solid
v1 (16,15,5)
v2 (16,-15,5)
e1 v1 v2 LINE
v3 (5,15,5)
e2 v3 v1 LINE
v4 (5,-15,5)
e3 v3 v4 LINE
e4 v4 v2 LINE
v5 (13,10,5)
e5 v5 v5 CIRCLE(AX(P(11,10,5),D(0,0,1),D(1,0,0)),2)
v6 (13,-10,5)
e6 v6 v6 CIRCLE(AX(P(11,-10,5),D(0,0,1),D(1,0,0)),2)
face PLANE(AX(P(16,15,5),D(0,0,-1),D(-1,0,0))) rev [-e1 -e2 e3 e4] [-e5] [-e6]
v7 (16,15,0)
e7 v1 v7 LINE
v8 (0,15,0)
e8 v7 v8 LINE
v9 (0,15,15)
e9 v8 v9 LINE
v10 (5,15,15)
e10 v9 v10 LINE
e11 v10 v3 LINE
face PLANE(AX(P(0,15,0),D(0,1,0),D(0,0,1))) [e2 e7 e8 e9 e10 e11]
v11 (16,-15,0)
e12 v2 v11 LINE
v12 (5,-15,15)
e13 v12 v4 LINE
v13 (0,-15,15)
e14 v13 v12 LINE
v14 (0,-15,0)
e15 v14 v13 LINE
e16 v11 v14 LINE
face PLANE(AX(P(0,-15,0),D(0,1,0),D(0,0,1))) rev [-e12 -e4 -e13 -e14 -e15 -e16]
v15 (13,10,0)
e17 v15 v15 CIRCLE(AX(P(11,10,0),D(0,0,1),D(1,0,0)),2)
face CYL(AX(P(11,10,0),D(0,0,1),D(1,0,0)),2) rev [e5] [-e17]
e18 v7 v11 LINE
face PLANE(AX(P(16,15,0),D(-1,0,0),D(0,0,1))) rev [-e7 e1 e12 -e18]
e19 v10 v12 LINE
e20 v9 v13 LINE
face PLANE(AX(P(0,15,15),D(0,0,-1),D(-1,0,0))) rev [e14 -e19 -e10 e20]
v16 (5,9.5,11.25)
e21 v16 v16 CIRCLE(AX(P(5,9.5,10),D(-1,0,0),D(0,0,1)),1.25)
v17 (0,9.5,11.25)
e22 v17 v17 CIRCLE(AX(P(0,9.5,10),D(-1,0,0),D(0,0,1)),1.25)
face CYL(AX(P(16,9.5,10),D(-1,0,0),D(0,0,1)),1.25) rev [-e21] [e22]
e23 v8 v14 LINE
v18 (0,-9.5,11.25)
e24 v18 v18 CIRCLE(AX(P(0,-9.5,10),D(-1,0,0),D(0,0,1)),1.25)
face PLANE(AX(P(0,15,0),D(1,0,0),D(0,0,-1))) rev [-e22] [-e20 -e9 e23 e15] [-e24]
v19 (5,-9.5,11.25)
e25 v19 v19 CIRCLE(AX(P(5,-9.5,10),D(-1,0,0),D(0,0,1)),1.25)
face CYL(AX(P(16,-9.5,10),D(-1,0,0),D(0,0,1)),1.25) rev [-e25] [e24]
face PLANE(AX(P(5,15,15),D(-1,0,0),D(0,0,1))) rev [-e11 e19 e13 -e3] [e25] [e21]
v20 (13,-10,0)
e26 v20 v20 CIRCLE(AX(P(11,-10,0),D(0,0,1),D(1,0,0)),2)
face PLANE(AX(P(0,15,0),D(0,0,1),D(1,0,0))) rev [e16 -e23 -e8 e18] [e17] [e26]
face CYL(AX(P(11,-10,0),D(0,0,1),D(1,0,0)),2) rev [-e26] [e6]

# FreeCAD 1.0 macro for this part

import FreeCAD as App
import Part
import Sketcher
from FreeCAD import Vector


def add_polygon(sketch, points):
    """Adds a closed chain of lines whose ends are joined by coincident constraints."""
    first, n = sketch.GeometryCount, len(points)
    for a, b in zip(points, points[1:] + points[:1]):
        sketch.addGeometry(Part.LineSegment(App.Vector(*a, 0), App.Vector(*b, 0)), False)
    for i in range(n):
        sketch.addConstraint(Sketcher.Constraint("Coincident", first + i, 2, first + (i + 1) % n, 1))

doc = App.newDocument("Part")
params = doc.addObject("Spreadsheet::Sheet", "Params")
for row, (alias, value) in enumerate([
    ("sketch1_width", "16 mm"),
    ("sketch1_width2", "5 mm"),
    ("sketch1_height", "15 mm"),
    ("pad1_length", "30 mm"),
    ("sketch2_diameter", "4 mm"),
    ("sketch3_diameter", "2.5 mm"),
], start=1):
    params.set(f"A{row}", alias)
    params.set(f"B{row}", "=" + value)
    params.setAlias(f"B{row}", alias)

body = doc.addObject("PartDesign::Body", "Body")

# Sketch on XZ plane
sketch1 = body.newObject("Sketcher::SketchObject", "Sketch")
sketch1.AttachmentSupport = (doc.getObject("XZ_Plane"), [""])
sketch1.MapMode = "FlatFace"
add_polygon(sketch1, [(16, 0), (0, 0), (0, 15), (5, 15), (5, 5), (16, 5)])  # lines 0-5
sketch1.addConstraint(Sketcher.Constraint("Horizontal", 0))
sketch1.addConstraint(Sketcher.Constraint("Vertical", 1))
sketch1.addConstraint(Sketcher.Constraint("Horizontal", 2))
sketch1.addConstraint(Sketcher.Constraint("Vertical", 3))
sketch1.addConstraint(Sketcher.Constraint("Horizontal", 4))
sketch1.addConstraint(Sketcher.Constraint("Vertical", 5))
sketch1.addConstraint(Sketcher.Constraint("Coincident", 0, 2, -1, 1))
sketch1.addConstraint(Sketcher.Constraint("Equal", 2, 5))
sketch1.addConstraint(Sketcher.Constraint("DistanceX", 0, 2, 0, 1, 16.0))
sketch1.addConstraint(Sketcher.Constraint("DistanceX", 2, 1, 2, 2, 5.0))
sketch1.addConstraint(Sketcher.Constraint("DistanceY", 1, 1, 1, 2, 15.0))
sketch1.setExpression("Constraints[14]", "Params.sketch1_width")
sketch1.setExpression("Constraints[15]", "Params.sketch1_width2")
sketch1.setExpression("Constraints[16]", "Params.sketch1_height")
pad1 = body.newObject("PartDesign::Pad", "Pad")
pad1.Profile = sketch1
pad1.setExpression("Length", "Params.pad1_length")
pad1.Midplane = True

# Sketch on XY plane
sketch2 = body.newObject("Sketcher::SketchObject", "Sketch001")
sketch2.AttachmentSupport = (doc.getObject("XY_Plane"), [""])
sketch2.MapMode = "FlatFace"
sketch2.AttachmentOffset = App.Placement(Vector(0, 0, 5), App.Rotation())
sketch2.addGeometry(Part.Circle(Vector(11, 10, 0), Vector(0, 0, 1), 2), False)
sketch2.addGeometry(Part.Circle(Vector(11, -10, 0), Vector(0, 0, 1), 2), False)
sketch2.addConstraint(Sketcher.Constraint("Equal", 0, 1))
sketch2.addConstraint(Sketcher.Constraint("Symmetric", 0, 3, 1, 3, -1))
sketch2.addConstraint(Sketcher.Constraint("Diameter", 0, 4.0))
sketch2.addConstraint(Sketcher.Constraint("DistanceX", -1, 1, 0, 3, 11.0))
sketch2.addConstraint(Sketcher.Constraint("DistanceY", -1, 1, 0, 3, 10.0))
sketch2.setExpression("Constraints[2]", "Params.sketch2_diameter")
pocket1 = body.newObject("PartDesign::Pocket", "Pocket")
pocket1.Profile = sketch2
pocket1.Type = "ThroughAll"

# Sketch on YZ plane
sketch3 = body.newObject("Sketcher::SketchObject", "Sketch002")
sketch3.AttachmentSupport = (doc.getObject("YZ_Plane"), [""])
sketch3.MapMode = "FlatFace"
sketch3.addGeometry(Part.Circle(Vector(9.5, 10, 0), Vector(0, 0, 1), 1.2), False)
sketch3.addGeometry(Part.Circle(Vector(-9.5, 10, 0), Vector(0, 0, 1), 1.2), False)
sketch3.addConstraint(Sketcher.Constraint("Equal", 0, 1))
sketch3.addConstraint(Sketcher.Constraint("Symmetric", 0, 3, 1, 3, -2))
sketch3.addConstraint(Sketcher.Constraint("Diameter", 0, 2.5))
sketch3.addConstraint(Sketcher.Constraint("DistanceY", -1, 1, 0, 3, 10.0))
sketch3.addConstraint(Sketcher.Constraint("DistanceX", 1, 3, 0, 3, 19.0))
sketch3.setExpression("Constraints[2]", "Params.sketch3_diameter")
pocket2 = body.newObject("PartDesign::Pocket", "Pocket001")
pocket2.Profile = sketch3
pocket2.Type = "ThroughAll"
pocket2.Reversed = True

doc.recompute()
